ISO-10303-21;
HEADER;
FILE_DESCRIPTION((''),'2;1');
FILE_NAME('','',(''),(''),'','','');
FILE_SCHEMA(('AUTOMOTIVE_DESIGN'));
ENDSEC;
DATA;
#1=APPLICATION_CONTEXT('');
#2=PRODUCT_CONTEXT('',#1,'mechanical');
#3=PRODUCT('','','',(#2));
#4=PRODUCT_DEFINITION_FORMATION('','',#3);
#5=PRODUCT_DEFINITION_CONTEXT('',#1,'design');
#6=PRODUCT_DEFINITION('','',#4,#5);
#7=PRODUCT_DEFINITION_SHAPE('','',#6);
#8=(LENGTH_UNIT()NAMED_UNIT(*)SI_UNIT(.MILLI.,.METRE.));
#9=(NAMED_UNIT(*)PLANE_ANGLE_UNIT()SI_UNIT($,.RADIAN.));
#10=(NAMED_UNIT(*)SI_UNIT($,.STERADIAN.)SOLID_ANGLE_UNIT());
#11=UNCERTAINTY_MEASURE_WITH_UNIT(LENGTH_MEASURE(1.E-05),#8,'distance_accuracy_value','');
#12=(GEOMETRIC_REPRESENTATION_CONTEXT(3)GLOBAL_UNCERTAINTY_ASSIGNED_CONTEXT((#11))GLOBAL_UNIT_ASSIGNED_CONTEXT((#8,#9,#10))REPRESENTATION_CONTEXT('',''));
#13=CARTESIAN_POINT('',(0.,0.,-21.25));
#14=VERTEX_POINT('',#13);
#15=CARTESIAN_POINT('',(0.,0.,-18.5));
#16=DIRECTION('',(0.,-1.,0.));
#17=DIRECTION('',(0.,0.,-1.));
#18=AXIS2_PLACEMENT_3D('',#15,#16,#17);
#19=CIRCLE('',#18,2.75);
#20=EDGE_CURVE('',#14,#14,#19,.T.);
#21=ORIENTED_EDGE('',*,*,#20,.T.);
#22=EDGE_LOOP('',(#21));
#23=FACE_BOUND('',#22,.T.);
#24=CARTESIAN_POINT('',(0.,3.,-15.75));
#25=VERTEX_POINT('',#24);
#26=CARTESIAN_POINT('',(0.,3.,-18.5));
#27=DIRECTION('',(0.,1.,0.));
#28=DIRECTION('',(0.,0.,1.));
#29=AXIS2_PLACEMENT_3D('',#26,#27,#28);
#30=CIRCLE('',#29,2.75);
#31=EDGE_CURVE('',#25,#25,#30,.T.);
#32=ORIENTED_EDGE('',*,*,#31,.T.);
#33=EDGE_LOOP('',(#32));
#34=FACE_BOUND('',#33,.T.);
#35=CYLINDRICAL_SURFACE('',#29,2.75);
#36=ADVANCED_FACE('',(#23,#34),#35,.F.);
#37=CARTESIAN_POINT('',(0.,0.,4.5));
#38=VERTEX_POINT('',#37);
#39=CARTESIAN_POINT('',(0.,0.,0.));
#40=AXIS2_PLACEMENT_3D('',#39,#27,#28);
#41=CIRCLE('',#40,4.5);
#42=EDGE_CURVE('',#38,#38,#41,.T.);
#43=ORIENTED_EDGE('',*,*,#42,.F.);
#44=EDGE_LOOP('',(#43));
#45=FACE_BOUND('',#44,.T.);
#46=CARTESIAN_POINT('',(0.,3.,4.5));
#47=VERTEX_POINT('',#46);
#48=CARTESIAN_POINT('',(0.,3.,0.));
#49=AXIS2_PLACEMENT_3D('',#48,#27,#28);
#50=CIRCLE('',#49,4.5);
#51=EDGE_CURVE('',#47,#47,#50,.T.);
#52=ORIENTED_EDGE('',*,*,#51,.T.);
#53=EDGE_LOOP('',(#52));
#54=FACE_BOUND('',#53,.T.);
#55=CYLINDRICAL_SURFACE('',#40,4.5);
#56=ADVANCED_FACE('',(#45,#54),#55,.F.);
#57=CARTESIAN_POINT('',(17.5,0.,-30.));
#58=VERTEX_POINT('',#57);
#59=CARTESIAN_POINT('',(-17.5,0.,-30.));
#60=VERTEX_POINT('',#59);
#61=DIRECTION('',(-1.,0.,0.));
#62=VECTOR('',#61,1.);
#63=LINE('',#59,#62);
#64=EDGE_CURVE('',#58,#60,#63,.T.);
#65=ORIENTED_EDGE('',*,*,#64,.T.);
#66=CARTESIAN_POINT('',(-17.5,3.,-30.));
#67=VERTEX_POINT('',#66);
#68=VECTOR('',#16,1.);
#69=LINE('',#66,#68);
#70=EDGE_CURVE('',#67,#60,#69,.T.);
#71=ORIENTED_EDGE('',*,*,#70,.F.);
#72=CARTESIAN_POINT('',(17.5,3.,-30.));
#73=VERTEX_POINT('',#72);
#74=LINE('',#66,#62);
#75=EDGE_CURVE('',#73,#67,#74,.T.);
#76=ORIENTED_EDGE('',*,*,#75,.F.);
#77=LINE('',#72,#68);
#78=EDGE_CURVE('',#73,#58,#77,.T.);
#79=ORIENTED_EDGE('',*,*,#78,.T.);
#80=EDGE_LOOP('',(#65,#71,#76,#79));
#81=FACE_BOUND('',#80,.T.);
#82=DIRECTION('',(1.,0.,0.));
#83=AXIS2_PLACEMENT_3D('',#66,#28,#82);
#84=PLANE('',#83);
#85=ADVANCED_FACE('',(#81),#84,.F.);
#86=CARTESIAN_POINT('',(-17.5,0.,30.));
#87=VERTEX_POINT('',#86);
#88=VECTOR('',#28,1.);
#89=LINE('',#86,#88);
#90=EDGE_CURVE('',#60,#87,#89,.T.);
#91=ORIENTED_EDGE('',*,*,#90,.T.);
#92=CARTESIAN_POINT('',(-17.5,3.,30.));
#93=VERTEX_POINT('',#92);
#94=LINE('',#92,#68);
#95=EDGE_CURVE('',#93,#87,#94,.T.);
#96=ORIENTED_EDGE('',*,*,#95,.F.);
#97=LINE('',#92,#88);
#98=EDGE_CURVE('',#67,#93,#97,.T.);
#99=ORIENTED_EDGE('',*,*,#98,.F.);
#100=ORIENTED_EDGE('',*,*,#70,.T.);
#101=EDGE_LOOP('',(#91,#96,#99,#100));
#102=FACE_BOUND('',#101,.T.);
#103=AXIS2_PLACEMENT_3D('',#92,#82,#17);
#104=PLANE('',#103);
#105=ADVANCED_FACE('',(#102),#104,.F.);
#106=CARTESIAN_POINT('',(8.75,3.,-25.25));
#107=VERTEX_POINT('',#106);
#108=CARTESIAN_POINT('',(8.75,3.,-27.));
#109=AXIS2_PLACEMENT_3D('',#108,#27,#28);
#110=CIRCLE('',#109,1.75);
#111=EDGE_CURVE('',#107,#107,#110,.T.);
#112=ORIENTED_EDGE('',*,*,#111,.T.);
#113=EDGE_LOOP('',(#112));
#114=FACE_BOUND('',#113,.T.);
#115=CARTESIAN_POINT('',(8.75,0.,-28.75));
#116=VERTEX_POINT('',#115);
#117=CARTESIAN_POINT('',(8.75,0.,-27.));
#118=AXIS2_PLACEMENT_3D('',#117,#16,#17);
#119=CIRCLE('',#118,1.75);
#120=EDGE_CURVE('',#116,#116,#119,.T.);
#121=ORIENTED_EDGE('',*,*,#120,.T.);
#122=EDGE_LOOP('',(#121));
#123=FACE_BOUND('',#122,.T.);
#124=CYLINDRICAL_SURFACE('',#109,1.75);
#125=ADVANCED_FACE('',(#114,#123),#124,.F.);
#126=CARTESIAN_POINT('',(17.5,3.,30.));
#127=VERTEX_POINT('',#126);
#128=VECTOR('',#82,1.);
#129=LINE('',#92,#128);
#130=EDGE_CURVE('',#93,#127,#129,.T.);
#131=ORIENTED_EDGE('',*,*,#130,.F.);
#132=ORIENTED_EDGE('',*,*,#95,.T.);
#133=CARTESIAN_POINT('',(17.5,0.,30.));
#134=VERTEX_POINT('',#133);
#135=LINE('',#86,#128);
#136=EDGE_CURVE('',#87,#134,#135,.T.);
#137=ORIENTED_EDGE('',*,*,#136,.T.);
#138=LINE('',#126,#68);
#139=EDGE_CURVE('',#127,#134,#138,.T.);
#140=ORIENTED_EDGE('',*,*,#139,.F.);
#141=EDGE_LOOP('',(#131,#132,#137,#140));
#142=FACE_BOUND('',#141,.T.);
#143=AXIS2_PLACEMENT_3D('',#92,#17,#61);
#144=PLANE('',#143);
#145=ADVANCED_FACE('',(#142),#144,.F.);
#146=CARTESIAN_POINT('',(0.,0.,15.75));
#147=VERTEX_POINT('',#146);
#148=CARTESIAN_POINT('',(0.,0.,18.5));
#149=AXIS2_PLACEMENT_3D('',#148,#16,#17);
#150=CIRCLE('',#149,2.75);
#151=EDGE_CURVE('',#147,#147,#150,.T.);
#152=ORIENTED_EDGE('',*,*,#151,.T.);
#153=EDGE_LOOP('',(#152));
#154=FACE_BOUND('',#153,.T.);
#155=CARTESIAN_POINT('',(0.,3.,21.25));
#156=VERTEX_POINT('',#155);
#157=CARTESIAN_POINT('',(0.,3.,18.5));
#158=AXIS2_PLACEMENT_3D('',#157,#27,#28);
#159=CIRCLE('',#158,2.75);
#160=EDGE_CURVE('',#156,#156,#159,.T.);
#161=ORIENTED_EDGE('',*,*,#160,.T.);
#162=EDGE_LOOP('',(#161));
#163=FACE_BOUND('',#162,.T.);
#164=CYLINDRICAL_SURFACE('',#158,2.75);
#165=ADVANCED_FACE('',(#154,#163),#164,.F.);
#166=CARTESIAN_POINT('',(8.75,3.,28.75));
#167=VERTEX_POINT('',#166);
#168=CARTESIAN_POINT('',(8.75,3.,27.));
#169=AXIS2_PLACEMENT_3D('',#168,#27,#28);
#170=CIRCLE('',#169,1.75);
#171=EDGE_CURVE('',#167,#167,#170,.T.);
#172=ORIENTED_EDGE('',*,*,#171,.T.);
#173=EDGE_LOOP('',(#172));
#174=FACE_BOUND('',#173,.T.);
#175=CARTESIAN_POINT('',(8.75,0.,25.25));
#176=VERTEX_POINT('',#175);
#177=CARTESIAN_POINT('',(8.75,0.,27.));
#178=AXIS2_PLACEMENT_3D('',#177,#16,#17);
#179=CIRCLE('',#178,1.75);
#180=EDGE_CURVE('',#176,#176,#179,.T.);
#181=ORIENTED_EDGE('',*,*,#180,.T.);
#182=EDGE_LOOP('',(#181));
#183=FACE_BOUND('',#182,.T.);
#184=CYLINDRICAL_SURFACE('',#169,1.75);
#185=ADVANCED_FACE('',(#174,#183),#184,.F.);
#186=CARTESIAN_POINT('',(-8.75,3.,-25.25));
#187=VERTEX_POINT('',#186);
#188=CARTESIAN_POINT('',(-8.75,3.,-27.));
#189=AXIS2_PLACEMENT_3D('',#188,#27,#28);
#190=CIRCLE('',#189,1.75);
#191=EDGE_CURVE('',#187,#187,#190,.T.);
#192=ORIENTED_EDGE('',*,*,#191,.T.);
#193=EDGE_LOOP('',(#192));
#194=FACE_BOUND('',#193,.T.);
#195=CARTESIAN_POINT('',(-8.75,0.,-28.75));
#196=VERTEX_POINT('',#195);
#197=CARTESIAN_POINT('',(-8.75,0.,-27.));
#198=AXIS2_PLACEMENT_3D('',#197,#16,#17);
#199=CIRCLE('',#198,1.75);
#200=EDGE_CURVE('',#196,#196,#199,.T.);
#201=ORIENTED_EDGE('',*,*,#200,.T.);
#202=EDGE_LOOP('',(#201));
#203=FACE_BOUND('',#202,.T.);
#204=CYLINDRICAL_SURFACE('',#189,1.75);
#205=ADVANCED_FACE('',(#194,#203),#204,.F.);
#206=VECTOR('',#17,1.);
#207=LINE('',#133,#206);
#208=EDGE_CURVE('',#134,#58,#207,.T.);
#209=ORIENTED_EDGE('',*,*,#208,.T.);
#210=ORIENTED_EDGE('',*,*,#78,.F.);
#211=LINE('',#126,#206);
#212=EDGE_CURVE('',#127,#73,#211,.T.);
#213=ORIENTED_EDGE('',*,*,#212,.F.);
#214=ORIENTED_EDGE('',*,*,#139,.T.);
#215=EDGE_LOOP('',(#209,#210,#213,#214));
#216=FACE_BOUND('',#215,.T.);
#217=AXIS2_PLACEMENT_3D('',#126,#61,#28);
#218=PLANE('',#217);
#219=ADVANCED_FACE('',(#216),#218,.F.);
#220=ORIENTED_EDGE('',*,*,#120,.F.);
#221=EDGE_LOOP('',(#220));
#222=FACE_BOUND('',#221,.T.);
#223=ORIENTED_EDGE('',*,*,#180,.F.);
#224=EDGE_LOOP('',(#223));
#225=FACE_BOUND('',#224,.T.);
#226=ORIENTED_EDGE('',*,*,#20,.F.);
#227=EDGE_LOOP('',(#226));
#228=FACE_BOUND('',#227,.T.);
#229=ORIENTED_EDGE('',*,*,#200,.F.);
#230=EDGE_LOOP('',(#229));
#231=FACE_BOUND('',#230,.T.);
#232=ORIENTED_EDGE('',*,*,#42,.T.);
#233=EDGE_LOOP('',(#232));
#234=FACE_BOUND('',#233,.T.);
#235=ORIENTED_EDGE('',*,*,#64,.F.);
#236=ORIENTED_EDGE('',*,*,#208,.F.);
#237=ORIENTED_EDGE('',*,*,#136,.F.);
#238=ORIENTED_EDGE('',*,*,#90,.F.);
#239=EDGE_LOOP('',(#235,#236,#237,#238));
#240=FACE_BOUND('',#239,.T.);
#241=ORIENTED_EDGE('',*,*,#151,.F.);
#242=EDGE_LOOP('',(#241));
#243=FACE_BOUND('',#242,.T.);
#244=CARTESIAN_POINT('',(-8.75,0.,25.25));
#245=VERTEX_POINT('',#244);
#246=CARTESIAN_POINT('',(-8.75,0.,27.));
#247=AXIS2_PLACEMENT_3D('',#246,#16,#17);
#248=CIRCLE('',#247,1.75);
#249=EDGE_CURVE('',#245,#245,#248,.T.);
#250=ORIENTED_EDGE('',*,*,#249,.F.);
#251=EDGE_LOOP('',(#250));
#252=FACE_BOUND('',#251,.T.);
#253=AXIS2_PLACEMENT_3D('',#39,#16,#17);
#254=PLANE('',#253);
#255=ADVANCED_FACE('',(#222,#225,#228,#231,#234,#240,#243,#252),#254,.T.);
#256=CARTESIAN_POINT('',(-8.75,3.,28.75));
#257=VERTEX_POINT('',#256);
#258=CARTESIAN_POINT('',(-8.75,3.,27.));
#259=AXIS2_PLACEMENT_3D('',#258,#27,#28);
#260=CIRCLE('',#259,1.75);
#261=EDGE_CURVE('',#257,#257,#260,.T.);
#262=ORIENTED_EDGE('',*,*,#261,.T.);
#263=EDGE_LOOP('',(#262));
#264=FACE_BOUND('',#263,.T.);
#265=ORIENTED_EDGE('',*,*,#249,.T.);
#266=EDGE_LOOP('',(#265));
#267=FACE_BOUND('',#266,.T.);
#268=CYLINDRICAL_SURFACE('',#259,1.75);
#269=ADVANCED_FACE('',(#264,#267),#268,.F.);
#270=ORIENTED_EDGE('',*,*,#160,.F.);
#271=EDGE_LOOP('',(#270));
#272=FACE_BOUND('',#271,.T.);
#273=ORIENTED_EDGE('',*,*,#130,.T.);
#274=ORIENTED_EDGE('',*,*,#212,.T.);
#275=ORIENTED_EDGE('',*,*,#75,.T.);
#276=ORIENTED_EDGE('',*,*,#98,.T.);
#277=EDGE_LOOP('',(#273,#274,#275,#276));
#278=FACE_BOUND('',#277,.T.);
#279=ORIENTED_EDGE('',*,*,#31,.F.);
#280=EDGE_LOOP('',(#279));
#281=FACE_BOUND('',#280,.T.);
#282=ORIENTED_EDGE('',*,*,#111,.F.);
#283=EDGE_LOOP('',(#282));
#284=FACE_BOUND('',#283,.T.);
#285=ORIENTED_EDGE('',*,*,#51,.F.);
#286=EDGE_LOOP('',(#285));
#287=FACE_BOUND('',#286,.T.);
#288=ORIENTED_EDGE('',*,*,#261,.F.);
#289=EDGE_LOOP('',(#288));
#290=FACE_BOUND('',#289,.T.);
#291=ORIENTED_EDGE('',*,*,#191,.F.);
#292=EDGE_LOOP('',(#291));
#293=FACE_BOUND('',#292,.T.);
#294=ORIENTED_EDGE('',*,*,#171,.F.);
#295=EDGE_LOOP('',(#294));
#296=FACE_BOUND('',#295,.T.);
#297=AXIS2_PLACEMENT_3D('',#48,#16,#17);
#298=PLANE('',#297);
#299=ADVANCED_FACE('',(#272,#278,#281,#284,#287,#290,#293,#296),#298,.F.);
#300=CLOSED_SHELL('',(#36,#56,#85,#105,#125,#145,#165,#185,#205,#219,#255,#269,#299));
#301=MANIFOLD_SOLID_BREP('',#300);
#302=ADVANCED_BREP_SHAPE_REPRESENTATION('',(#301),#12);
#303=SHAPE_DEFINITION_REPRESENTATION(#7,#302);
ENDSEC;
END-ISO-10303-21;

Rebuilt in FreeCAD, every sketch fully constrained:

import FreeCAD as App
import Part
import Sketcher
from FreeCAD import Vector
Q = App.Units.Quantity


def add_polygon(sketch, points):
    """Adds a closed chain of lines whose ends are joined by coincident constraints."""
    first, n = sketch.GeometryCount, len(points)
    for a, b in zip(points, points[1:] + points[:1]):
        sketch.addGeometry(Part.LineSegment(App.Vector(*a, 0), App.Vector(*b, 0)), False)
    for i in range(n):
        sketch.addConstraint(Sketcher.Constraint("Coincident", first + i, 2, first + (i + 1) % n, 1))

doc = App.newDocument("Part")
body = doc.addObject("PartDesign::Body", "Body")

sketch1 = doc.addObject("Sketcher::SketchObject", "Sketch")
body.addObject(sketch1)
sketch1.AttachmentSupport = (doc.XZ_Plane, [""])
sketch1.MapMode = "FlatFace"
add_polygon(sketch1, [(-18, -30), (-18, 30), (18, 30), (18, -30)])
sketch1.addConstraint([
    Sketcher.Constraint("Vertical", 0),
    Sketcher.Constraint("Horizontal", 1),
    Sketcher.Constraint("Vertical", 2),
    Sketcher.Constraint("Horizontal", 3),
    Sketcher.Constraint("Symmetric", 0, 2, 2, 2, -1, 1),
    Sketcher.Constraint("DistanceX", 1, 1, 1, 2, Q("35 mm")),
    Sketcher.Constraint("DistanceY", 0, 1, 0, 2, Q("60 mm")),
])
pad1 = doc.addObject("PartDesign::Pad", "Pad")
body.addObject(pad1)
pad1.Profile = sketch1
pad1.Length = 3
pad1.Reversed = True

sketch2 = doc.addObject("Sketcher::SketchObject", "Sketch001")
body.addObject(sketch2)
sketch2.AttachmentSupport = (doc.XZ_Plane, [""])
sketch2.MapMode = "FlatFace"
sketch2.AttachmentOffset = App.Placement(Vector(0, 0, -3), App.Rotation())
sketch2.addGeometry([
    Part.Circle(Vector(-8.8, -27, 0), Vector(0, 0, 1), 1.8),
    Part.Circle(Vector(8.8, -27, 0), Vector(0, 0, 1), 1.8),
    Part.Circle(Vector(8.8, 27, 0), Vector(0, 0, 1), 1.8),
    Part.Circle(Vector(-8.8, 27, 0), Vector(0, 0, 1), 1.8),
], False)
sketch2.addConstraint([
    Sketcher.Constraint("Equal", 0, 1),
    Sketcher.Constraint("Equal", 1, 2),
    Sketcher.Constraint("Equal", 2, 3),
    Sketcher.Constraint("Symmetric", 0, 3, 2, 3, -1, 1),
    Sketcher.Constraint("Symmetric", 1, 3, 3, 3, -1, 1),
    Sketcher.Constraint("Symmetric", 0, 3, 1, 3, -2),
    Sketcher.Constraint("Diameter", 0, Q("3.5 mm")),
    Sketcher.Constraint("DistanceY", 0, 3, -1, 1, Q("27 mm")),
    Sketcher.Constraint("DistanceX", 0, 3, 1, 3, Q("17.5 mm")),
])
doc.recompute()
hole = doc.addObject("PartDesign::Hole", "Hole")
body.addObject(hole)
hole.Profile = sketch2
hole.ThreadType = "None"
hole.Diameter = 3.5
hole.DepthType = "ThroughAll"
hole.Reversed = True

sketch3 = doc.addObject("Sketcher::SketchObject", "Sketch002")
body.addObject(sketch3)
sketch3.AttachmentSupport = (doc.XZ_Plane, [""])
sketch3.MapMode = "FlatFace"
sketch3.AttachmentOffset = App.Placement(Vector(0, 0, -3), App.Rotation())
sketch3.addGeometry([
    Part.Circle(Vector(0, -18.5, 0), Vector(0, 0, 1), 2.8),
    Part.Circle(Vector(0, 18.5, 0), Vector(0, 0, 1), 2.8),
], False)
sketch3.addConstraint([
    Sketcher.Constraint("Equal", 0, 1),
    Sketcher.Constraint("Symmetric", 0, 3, 1, 3, -1, 1),
    Sketcher.Constraint("PointOnObject", 0, 3, -2),
    Sketcher.Constraint("Diameter", 0, Q("5.5 mm")),
    Sketcher.Constraint("DistanceY", 0, 3, 1, 3, Q("37 mm")),
])
doc.recompute()
hole2 = doc.addObject("PartDesign::Hole", "Hole001")
body.addObject(hole2)
hole2.Profile = sketch3
hole2.ThreadType = "None"
hole2.Diameter = 5.5
hole2.DepthType = "ThroughAll"
hole2.Reversed = True

sketch4 = doc.addObject("Sketcher::SketchObject", "Sketch003")
body.addObject(sketch4)
sketch4.AttachmentSupport = (doc.XZ_Plane, [""])
sketch4.MapMode = "FlatFace"
sketch4.AttachmentOffset = App.Placement(Vector(0, 0, -3), App.Rotation())
sketch4.addGeometry(Part.Circle(Vector(0, 0, 0), Vector(0, 0, 1), 4.5), False)
sketch4.addConstraint([
    Sketcher.Constraint("Coincident", 0, 3, -1, 1),
    Sketcher.Constraint("Diameter", 0, Q("9 mm")),
])
pocket1 = doc.addObject("PartDesign::Pocket", "Pocket")
body.addObject(pocket1)
pocket1.Profile = sketch4
pocket1.Length = 3
pocket1.Reversed = True

doc.recompute()
